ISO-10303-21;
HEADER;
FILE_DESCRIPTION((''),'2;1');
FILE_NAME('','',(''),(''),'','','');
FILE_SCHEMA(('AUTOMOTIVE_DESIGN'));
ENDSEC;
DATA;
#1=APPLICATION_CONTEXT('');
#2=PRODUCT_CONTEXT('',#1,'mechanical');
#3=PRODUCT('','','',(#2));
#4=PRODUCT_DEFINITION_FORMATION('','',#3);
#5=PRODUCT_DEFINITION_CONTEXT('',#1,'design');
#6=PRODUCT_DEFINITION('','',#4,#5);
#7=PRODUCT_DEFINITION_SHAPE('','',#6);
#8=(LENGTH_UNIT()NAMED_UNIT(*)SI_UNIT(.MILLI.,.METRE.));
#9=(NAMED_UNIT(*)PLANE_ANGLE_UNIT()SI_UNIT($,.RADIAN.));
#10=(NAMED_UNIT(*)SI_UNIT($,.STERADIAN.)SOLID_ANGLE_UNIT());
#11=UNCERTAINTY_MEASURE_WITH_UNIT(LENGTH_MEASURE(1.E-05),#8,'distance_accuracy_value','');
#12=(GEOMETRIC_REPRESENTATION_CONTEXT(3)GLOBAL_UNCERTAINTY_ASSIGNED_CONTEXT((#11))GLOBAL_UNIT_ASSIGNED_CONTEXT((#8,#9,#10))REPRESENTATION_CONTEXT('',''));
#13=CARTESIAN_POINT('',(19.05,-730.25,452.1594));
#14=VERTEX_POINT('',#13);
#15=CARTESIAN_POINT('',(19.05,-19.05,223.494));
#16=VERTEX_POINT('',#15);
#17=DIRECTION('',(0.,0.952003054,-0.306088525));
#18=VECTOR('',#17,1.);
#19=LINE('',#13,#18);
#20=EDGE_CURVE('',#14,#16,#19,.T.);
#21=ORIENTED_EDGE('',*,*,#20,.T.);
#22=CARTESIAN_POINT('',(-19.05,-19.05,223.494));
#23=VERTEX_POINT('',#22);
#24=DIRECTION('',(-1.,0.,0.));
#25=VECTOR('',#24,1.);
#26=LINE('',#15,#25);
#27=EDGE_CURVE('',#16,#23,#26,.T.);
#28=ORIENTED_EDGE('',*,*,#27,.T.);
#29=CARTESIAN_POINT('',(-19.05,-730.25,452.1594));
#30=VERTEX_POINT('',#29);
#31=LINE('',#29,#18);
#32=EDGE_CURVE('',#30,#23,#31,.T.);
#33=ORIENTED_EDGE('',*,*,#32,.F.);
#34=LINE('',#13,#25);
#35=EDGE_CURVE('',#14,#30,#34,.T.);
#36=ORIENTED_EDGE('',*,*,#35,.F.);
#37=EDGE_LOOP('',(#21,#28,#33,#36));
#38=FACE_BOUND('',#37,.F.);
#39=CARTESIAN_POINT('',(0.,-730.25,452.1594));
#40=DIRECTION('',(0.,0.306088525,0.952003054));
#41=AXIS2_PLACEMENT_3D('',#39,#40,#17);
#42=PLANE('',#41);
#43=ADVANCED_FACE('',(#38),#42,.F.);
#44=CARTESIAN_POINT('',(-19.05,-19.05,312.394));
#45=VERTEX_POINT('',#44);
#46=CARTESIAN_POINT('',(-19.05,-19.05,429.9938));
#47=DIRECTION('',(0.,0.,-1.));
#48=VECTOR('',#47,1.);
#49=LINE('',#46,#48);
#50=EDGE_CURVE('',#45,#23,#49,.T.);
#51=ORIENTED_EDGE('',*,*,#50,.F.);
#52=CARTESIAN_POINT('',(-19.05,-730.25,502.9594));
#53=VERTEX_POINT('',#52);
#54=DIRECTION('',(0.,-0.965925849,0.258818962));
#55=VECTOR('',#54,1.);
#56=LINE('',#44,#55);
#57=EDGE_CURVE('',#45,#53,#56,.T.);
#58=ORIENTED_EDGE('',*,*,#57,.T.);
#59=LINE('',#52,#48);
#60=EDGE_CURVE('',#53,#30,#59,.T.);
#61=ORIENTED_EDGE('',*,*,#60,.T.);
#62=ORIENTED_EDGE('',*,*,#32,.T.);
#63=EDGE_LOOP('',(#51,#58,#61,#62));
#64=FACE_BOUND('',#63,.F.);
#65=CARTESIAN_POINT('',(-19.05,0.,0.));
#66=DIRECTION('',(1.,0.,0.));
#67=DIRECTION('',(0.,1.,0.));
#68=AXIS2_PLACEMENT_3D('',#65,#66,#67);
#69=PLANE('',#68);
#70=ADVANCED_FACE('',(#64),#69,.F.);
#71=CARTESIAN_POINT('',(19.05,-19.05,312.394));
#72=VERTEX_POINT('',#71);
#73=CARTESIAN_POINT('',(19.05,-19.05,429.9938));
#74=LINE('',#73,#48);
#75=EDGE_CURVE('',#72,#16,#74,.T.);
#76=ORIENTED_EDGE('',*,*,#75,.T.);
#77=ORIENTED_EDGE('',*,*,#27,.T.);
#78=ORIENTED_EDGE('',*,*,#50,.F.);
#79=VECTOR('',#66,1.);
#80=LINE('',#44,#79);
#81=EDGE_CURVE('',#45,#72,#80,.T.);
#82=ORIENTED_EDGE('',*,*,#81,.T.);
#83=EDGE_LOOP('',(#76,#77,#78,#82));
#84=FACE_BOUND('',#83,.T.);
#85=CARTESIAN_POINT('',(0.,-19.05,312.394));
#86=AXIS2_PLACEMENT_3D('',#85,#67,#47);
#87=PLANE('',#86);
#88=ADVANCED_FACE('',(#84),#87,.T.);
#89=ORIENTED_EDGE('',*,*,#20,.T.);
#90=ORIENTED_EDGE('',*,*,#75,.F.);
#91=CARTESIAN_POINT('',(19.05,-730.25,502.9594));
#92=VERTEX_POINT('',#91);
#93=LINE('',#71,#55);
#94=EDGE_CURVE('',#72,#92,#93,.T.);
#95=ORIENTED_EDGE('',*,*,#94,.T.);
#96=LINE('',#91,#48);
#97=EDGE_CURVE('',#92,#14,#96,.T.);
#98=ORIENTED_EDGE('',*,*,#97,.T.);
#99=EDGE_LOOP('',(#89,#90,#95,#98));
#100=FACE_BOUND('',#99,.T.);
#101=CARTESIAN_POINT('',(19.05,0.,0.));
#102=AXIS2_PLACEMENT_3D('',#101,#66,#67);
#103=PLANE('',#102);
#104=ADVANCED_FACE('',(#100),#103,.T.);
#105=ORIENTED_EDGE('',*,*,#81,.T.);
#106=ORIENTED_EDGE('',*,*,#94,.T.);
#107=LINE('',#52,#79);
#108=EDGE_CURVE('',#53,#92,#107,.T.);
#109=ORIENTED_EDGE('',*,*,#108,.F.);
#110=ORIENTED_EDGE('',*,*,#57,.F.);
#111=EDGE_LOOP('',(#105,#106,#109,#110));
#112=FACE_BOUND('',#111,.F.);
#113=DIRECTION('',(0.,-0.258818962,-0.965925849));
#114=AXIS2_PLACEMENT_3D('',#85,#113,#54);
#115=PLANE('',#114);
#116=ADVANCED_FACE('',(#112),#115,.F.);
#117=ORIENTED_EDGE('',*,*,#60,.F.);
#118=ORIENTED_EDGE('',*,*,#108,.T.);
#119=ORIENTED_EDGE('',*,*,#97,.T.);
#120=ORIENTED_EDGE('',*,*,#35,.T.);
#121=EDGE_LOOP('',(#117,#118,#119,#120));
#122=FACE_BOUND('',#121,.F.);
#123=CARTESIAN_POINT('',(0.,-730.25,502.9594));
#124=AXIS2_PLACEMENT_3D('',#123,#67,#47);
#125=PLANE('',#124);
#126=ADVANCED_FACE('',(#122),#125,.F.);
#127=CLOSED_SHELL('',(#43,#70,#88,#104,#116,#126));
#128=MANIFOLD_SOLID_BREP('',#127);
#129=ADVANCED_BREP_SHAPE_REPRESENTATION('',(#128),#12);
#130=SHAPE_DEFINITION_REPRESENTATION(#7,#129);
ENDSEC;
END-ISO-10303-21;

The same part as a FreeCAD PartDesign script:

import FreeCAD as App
import Part
import Sketcher

V = App.Vector
Q = App.Units.Quantity

doc = App.newDocument("Part")
body = doc.addObject("PartDesign::Body", "Body")

# Sketch on YZ plane
sketch1 = body.newObject("Sketcher::SketchObject", "Sketch")
sketch1.AttachmentSupport = (doc.getObject("YZ_Plane"), [""])
sketch1.MapMode = "FlatFace"
sketch1.addGeometry([
    Part.LineSegment(V(-19.05, 223.494, 0), V(-19.05, 312.394, 0)),
    Part.LineSegment(V(-19.05, 312.394, 0), V(-730.25, 502.9594, 0)),
    Part.LineSegment(V(-730.25, 502.9594, 0), V(-730.25, 452.1594, 0)),
    Part.LineSegment(V(-730.25, 452.1594, 0), V(-19.05, 223.494, 0)),
], False)
sketch1.addConstraint([
    Sketcher.Constraint("Coincident", 0, 2, 1, 1),
    Sketcher.Constraint("Coincident", 1, 2, 2, 1),
    Sketcher.Constraint("Coincident", 2, 2, 3, 1),
    Sketcher.Constraint("Coincident", 3, 2, 0, 1),
    Sketcher.Constraint("Vertical", 0),
    Sketcher.Constraint("Vertical", 2),
    Sketcher.Constraint("DistanceY", 2, 2, 2, 1, Q("2 in")),
    Sketcher.Constraint("DistanceY", 0, 1, 0, 2, Q("3.5 in")),
    Sketcher.Constraint("DistanceX", 1, 2, 0, 2, Q("28 in")),
    Sketcher.Constraint("Angle", 1, Q("165 deg")),
    Sketcher.Constraint("DistanceX", 0, 2, -1, 1, Q("0.75 in")),
    Sketcher.Constraint("DistanceY", -1, 1, 0, 2, Q("312.394 mm")),
])
pad1 = body.newObject("PartDesign::Pad", "Pad")
pad1.Profile = sketch1
pad1.Length = Q("1.5 in")
pad1.Midplane = True

doc.recompute()
